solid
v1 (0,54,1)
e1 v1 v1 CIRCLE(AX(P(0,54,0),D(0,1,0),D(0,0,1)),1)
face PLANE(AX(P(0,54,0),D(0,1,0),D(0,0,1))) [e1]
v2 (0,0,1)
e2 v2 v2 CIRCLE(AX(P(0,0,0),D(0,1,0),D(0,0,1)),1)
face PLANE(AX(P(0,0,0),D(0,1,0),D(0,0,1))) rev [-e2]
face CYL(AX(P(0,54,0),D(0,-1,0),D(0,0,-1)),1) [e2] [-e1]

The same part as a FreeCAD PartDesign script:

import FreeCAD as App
import Part
import Sketcher

V = App.Vector
Q = App.Units.Quantity

doc = App.newDocument("Part")
body = doc.addObject("PartDesign::Body", "Body")

sketch1 = body.newObject("Sketcher::SketchObject", "Sketch")
sketch1.AttachmentSupport = (doc.getObject("XZ_Plane"), [""])
sketch1.MapMode = "FlatFace"
sketch1.addGeometry(Part.Circle(V(0, 0, 0), V(0, 0, 1), 1), False)
sketch1.addConstraint([
    Sketcher.Constraint("Coincident", 0, 3, -1, 1),
    Sketcher.Constraint("Diameter", 0, Q("2 mm")),
])
pad1 = body.newObject("PartDesign::Pad", "Pad")
pad1.Profile = sketch1
pad1.Length = 54
pad1.Reversed = True

doc.recompute()
